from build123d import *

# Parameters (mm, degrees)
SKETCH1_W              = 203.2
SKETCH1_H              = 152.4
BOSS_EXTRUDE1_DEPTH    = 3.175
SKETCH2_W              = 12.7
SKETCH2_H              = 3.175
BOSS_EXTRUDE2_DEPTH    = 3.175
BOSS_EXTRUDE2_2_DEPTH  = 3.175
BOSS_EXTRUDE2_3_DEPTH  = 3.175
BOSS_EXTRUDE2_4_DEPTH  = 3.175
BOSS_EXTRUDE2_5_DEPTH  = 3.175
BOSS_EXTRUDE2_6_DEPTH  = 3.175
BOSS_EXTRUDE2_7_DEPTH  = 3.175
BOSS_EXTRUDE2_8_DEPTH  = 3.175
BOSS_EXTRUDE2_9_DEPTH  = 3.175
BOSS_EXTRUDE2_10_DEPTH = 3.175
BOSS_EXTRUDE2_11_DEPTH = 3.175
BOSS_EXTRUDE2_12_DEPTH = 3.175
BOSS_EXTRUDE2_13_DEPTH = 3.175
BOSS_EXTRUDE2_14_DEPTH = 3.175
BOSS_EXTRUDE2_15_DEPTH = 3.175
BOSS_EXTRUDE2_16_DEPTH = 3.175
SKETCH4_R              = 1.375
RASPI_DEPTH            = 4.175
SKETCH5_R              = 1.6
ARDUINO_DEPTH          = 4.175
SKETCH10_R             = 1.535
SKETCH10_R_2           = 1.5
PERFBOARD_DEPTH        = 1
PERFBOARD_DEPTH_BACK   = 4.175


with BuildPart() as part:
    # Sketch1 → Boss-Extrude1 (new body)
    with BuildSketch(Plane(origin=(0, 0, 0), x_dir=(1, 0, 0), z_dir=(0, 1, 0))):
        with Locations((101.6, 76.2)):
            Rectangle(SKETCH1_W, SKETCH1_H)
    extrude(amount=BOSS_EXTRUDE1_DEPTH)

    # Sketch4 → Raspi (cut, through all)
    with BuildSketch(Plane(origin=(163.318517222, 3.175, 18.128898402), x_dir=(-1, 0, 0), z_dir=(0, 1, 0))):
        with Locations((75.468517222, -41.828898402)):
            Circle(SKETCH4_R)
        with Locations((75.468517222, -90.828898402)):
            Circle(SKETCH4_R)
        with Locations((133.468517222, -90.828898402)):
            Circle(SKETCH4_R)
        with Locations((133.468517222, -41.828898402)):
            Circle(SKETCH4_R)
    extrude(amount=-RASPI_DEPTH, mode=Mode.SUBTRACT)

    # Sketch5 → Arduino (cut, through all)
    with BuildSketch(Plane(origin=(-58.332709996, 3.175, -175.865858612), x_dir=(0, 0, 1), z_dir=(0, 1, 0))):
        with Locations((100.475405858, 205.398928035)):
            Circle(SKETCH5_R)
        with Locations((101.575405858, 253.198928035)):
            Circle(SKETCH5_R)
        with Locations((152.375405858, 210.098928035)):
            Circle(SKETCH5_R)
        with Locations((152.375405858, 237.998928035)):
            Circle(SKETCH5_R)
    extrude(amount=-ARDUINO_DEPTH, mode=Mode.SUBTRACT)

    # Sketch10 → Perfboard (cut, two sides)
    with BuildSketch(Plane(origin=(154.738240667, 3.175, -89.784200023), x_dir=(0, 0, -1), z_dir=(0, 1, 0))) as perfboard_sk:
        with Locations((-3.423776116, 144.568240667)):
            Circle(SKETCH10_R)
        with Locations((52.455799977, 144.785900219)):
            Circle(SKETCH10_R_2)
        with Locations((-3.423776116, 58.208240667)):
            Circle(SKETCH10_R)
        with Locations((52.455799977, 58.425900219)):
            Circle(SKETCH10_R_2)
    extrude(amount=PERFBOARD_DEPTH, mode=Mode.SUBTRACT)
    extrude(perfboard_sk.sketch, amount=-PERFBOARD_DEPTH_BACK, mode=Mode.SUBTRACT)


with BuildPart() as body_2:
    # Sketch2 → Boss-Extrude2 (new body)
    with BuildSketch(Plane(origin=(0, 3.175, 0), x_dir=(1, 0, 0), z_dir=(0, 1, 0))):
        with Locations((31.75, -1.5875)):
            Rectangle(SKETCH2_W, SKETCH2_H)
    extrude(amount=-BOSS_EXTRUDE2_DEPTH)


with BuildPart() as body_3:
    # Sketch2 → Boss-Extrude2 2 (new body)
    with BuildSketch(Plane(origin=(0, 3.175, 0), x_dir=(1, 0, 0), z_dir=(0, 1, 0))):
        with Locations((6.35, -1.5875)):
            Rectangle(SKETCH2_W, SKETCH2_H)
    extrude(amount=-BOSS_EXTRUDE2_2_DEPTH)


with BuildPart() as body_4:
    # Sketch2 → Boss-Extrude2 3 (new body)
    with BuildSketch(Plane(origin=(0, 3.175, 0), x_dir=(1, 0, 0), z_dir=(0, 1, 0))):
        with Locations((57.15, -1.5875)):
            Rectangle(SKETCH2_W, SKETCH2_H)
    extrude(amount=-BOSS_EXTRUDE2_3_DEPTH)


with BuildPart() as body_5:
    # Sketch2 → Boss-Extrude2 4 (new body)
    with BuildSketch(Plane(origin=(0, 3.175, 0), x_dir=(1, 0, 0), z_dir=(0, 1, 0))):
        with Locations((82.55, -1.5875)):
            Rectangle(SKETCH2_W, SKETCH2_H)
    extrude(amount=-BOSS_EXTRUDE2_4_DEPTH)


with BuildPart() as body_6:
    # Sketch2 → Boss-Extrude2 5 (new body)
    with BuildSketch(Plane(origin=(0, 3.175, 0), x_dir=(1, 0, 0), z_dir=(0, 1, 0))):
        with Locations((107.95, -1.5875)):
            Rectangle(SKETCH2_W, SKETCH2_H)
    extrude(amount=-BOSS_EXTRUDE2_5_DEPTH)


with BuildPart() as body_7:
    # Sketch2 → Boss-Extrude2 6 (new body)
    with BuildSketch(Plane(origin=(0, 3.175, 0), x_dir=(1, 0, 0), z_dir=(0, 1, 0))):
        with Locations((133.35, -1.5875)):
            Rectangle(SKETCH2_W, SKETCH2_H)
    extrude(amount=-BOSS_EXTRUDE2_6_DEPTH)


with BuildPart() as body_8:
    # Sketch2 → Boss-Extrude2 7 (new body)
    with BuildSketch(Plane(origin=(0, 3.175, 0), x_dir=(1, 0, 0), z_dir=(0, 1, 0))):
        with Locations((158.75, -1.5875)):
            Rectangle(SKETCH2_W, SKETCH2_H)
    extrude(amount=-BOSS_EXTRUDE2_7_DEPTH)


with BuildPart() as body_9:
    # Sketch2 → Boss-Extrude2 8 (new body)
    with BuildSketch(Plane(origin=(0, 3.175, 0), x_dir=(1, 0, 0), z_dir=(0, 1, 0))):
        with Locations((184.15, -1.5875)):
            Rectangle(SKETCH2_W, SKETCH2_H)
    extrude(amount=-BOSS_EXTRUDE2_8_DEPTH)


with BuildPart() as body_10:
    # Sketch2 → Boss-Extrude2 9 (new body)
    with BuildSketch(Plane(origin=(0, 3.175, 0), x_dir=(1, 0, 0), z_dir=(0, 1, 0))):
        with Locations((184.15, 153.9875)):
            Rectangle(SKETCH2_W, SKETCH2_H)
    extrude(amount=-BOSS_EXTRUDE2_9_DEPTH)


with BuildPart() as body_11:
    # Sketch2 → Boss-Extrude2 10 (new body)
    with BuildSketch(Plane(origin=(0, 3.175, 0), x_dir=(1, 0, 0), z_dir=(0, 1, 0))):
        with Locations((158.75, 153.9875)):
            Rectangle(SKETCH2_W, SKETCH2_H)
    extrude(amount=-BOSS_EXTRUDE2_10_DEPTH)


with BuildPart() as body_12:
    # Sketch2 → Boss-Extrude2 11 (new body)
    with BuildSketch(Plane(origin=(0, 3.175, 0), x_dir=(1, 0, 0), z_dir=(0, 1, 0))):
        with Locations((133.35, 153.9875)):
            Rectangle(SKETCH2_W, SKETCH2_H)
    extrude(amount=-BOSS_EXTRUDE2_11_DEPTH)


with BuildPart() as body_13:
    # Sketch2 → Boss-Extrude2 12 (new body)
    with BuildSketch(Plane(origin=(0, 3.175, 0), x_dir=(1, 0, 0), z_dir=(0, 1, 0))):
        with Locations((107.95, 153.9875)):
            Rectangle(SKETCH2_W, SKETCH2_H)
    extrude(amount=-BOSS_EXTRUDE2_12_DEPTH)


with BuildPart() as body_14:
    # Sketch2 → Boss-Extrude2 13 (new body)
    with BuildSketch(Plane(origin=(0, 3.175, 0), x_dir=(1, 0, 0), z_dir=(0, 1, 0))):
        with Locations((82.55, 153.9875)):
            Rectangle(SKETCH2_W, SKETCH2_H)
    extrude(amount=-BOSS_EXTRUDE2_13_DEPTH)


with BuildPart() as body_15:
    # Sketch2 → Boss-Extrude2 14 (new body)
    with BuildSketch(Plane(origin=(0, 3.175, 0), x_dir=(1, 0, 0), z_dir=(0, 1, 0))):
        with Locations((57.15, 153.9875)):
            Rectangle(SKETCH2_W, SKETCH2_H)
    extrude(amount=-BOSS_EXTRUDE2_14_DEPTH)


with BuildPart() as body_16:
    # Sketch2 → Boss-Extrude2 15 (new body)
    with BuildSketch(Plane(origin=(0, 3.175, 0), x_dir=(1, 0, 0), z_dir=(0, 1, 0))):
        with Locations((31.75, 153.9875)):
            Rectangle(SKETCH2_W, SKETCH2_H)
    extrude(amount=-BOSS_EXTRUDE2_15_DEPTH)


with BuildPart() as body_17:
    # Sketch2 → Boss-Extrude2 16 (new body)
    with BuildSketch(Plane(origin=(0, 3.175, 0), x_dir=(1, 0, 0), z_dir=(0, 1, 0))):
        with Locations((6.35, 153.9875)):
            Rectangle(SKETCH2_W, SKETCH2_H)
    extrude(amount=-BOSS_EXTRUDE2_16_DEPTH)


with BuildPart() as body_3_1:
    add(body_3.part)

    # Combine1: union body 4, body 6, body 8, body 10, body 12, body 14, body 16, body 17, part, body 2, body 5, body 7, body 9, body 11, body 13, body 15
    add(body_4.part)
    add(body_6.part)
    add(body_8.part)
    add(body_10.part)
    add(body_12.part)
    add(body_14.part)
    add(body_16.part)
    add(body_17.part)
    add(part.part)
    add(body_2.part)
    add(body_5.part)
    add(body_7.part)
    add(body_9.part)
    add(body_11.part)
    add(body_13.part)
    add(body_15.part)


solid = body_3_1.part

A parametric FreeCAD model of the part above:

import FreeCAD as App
import Part
import Sketcher

V = App.Vector
Q = App.Units.Quantity


def add_polygon(sketch, points):
    """Adds a closed chain of lines whose ends are joined by coincident constraints."""
    first, n = sketch.GeometryCount, len(points)
    for a, b in zip(points, points[1:] + points[:1]):
        sketch.addGeometry(Part.LineSegment(App.Vector(*a, 0), App.Vector(*b, 0)), False)
    for i in range(n):
        sketch.addConstraint(Sketcher.Constraint("Coincident", first + i, 2, first + (i + 1) % n, 1))

doc = App.newDocument("Part")
body = doc.addObject("PartDesign::Body", "Body")

sketch1 = body.newObject("Sketcher::SketchObject", "Sketch")
sketch1.AttachmentSupport = (doc.getObject("XZ_Plane"), [""])
sketch1.MapMode = "FlatFace"
add_polygon(sketch1, [(0, -152), (0, 0), (203, 0), (203, -152)])
sketch1.addConstraint(Sketcher.Constraint("Vertical", 0))
sketch1.addConstraint(Sketcher.Constraint("Horizontal", 1))
sketch1.addConstraint(Sketcher.Constraint("Vertical", 2))
sketch1.addConstraint(Sketcher.Constraint("Horizontal", 3))
sketch1.addConstraint(Sketcher.Constraint("Coincident", 0, 2, -1, 1))
sketch1.addConstraint(Sketcher.Constraint("DistanceX", 1, 1, 1, 2, Q("8 in")))
sketch1.addConstraint(Sketcher.Constraint("DistanceY", 0, 1, 0, 2, Q("6 in")))
pad1 = body.newObject("PartDesign::Pad", "Pad")
pad1.Profile = sketch1
pad1.Length = Q("0.125 in")
pad1.Reversed = True

sketch2 = body.newObject("Sketcher::SketchObject", "Sketch001")
sketch2.AttachmentSupport = (doc.getObject("XZ_Plane"), [""])
sketch2.MapMode = "FlatFace"
sketch2.AttachmentOffset = App.Placement(V(0, 0, -0.125 * 25.4), App.Rotation())
sketch2.addGeometry(Part.Circle(V(87.8, -23.7, 0), V(0, 0, 1), 1.4), False)
sketch2.addGeometry(Part.Circle(V(87.8, -72.7, 0), V(0, 0, 1), 1.4), False)
sketch2.addGeometry(Part.Circle(V(29.9, -72.7, 0), V(0, 0, 1), 1.4), False)
sketch2.addGeometry(Part.Circle(V(29.9, -23.7, 0), V(0, 0, 1), 1.4), False)
sketch2.addConstraint(Sketcher.Constraint("Equal", 0, 1))
sketch2.addConstraint(Sketcher.Constraint("Equal", 1, 2))
sketch2.addConstraint(Sketcher.Constraint("Equal", 2, 3))
sketch2.addConstraint(Sketcher.Constraint("Horizontal", 1, 3, 2, 3))
sketch2.addConstraint(Sketcher.Constraint("Horizontal", 0, 3, 3, 3))
sketch2.addConstraint(Sketcher.Constraint("Vertical", 0, 3, 1, 3))
sketch2.addConstraint(Sketcher.Constraint("Vertical", 2, 3, 3, 3))
sketch2.addConstraint(Sketcher.Constraint("Diameter", 0, 2.75))
sketch2.addConstraint(Sketcher.Constraint("DistanceX", -1, 1, 0, 3, 87.85))
sketch2.addConstraint(Sketcher.Constraint("DistanceY", 0, 3, -1, 1, 23.7))
sketch2.addConstraint(Sketcher.Constraint("DistanceY", 1, 3, -1, 1, 72.7))
sketch2.addConstraint(Sketcher.Constraint("DistanceX", -1, 1, 2, 3, 29.85))
pocket1 = body.newObject("PartDesign::Pocket", "Pocket")
pocket1.Profile = sketch2
pocket1.Type = "ThroughAll"
pocket1.Reversed = True

sketch3 = body.newObject("Sketcher::SketchObject", "Sketch002")
sketch3.AttachmentSupport = (doc.getObject("XZ_Plane"), [""])
sketch3.MapMode = "FlatFace"
sketch3.AttachmentOffset = App.Placement(V(0, 0, -0.125 * 25.4), App.Rotation())
sketch3.addGeometry(Part.Circle(V(147.1, -75.4, 0), V(0, 0, 1), 1.6), False)
sketch3.addGeometry(Part.Circle(V(194.9, -74.3, 0), V(0, 0, 1), 1.6), False)
sketch3.addGeometry(Part.Circle(V(151.8, -23.5, 0), V(0, 0, 1), 1.6), False)
sketch3.addGeometry(Part.Circle(V(179.7, -23.5, 0), V(0, 0, 1), 1.6), False)
sketch3.addConstraint(Sketcher.Constraint("Equal", 0, 1))
sketch3.addConstraint(Sketcher.Constraint("Equal", 1, 2))
sketch3.addConstraint(Sketcher.Constraint("Equal", 2, 3))
sketch3.addConstraint(Sketcher.Constraint("Horizontal", 2, 3, 3, 3))
sketch3.addConstraint(Sketcher.Constraint("DistanceY", 1, 3, 2, 3, Q("2 in")))
sketch3.addConstraint(Sketcher.Constraint("Diameter", 0, 3.2))
sketch3.addConstraint(Sketcher.Constraint("DistanceX", 0, 3, 1, 3, 47.8))
sketch3.addConstraint(Sketcher.Constraint("DistanceY", 0, 3, 1, 3, 1.1))
sketch3.addConstraint(Sketcher.Constraint("DistanceX", 0, 3, 2, 3, 4.7))
sketch3.addConstraint(Sketcher.Constraint("DistanceX", 2, 3, 3, 3, 27.9))
sketch3.addConstraint(Sketcher.Constraint("DistanceX", -1, 1, 0, 3, 147.066218))
sketch3.addConstraint(Sketcher.Constraint("DistanceY", 0, 3, -1, 1, 75.390453))
pocket2 = body.newObject("PartDesign::Pocket", "Pocket001")
pocket2.Profile = sketch3
pocket2.Type = "ThroughAll"
pocket2.Reversed = True

sketch4 = body.newObject("Sketcher::SketchObject", "Sketch003")
sketch4.AttachmentSupport = (doc.getObject("XZ_Plane"), [""])
sketch4.MapMode = "FlatFace"
sketch4.AttachmentOffset = App.Placement(V(0, 0, -0.125 * 25.4), App.Rotation())
sketch4.addGeometry(Part.Circle(V(10.2, -86.4, 0), V(0, 0, 1), 1.5), False)
sketch4.addGeometry(Part.Circle(V(10, -142.2, 0), V(0, 0, 1), 1.5), False)
sketch4.addGeometry(Part.Circle(V(96.5, -86.4, 0), V(0, 0, 1), 1.5), False)
sketch4.addGeometry(Part.Circle(V(96.3, -142.2, 0), V(0, 0, 1), 1.5), False)
sketch4.addConstraint(Sketcher.Constraint("Equal", 0, 2))
sketch4.addConstraint(Sketcher.Constraint("Equal", 1, 3))
sketch4.addConstraint(Sketcher.Constraint("Horizontal", 0, 3, 2, 3))
sketch4.addConstraint(Sketcher.Constraint("Horizontal", 1, 3, 3, 3))
sketch4.addConstraint(Sketcher.Constraint("DistanceY", 1, 3, -1, 1, Q("5.6 in")))
sketch4.addConstraint(Sketcher.Constraint("DistanceX", 0, 3, 2, 3, Q("3.4 in")))
sketch4.addConstraint(Sketcher.Constraint("DistanceX", 1, 3, 3, 3, Q("3.4 in")))
sketch4.addConstraint(Sketcher.Constraint("Diameter", 0, 3.07))
sketch4.addConstraint(Sketcher.Constraint("Diameter", 1, 3.0))
sketch4.addConstraint(Sketcher.Constraint("DistanceX", -1, 1, 0, 3, 10.17))
sketch4.addConstraint(Sketcher.Constraint("DistanceX", -1, 1, 1, 3, 9.95234))
sketch4.addConstraint(Sketcher.Constraint("DistanceY", 0, 3, -1, 1, 86.360424))
pocket3 = body.newObject("PartDesign::Pocket", "Pocket002")
pocket3.Profile = sketch4
pocket3.Type = "ThroughAll"
pocket3.Midplane = True
body2 = doc.addObject("PartDesign::Body", "Body001")

sketch5 = body2.newObject("Sketcher::SketchObject", "Sketch004")
sketch5.AttachmentSupport = (doc.getObject("XZ_Plane001"), [""])
sketch5.MapMode = "FlatFace"
sketch5.AttachmentOffset = App.Placement(V(0, 0, -0.125 * 25.4), App.Rotation())
add_polygon(sketch5, [(25.4, 0), (25.4, 3.2), (38.1, 3.2), (38.1, 0)])
sketch5.addConstraint(Sketcher.Constraint("Vertical", 0))
sketch5.addConstraint(Sketcher.Constraint("Horizontal", 1))
sketch5.addConstraint(Sketcher.Constraint("Vertical", 2))
sketch5.addConstraint(Sketcher.Constraint("Horizontal", 3))
sketch5.addConstraint(Sketcher.Constraint("PointOnObject", 2, 2, -1))
sketch5.addConstraint(Sketcher.Constraint("DistanceX", 1, 1, 1, 2, Q("0.5 in")))
sketch5.addConstraint(Sketcher.Constraint("DistanceX", -1, 1, 0, 2, Q("1 in")))
sketch5.addConstraint(Sketcher.Constraint("DistanceY", 0, 1, 0, 2, Q("0.125 in")))
pad2 = body2.newObject("PartDesign::Pad", "Pad001")
pad2.Profile = sketch5
pad2.Length = Q("0.125 in")
body3 = doc.addObject("PartDesign::Body", "Body002")

sketch6 = body3.newObject("Sketcher::SketchObject", "Sketch005")
sketch6.AttachmentSupport = (doc.getObject("XZ_Plane002"), [""])
sketch6.MapMode = "FlatFace"
sketch6.AttachmentOffset = App.Placement(V(0, 0, -0.125 * 25.4), App.Rotation())
add_polygon(sketch6, [(0, 0), (0, 3.2), (12.7, 3.2), (12.7, 0)])
sketch6.addConstraint(Sketcher.Constraint("Vertical", 0))
sketch6.addConstraint(Sketcher.Constraint("Horizontal", 1))
sketch6.addConstraint(Sketcher.Constraint("Vertical", 2))
sketch6.addConstraint(Sketcher.Constraint("Horizontal", 3))
sketch6.addConstraint(Sketcher.Constraint("Coincident", 3, 2, -1, 1))
sketch6.addConstraint(Sketcher.Constraint("DistanceX", 1, 1, 1, 2, Q("0.5 in")))
sketch6.addConstraint(Sketcher.Constraint("DistanceY", 0, 1, 0, 2, Q("0.125 in")))
pad3 = body3.newObject("PartDesign::Pad", "Pad002")
pad3.Profile = sketch6
pad3.Length = Q("0.125 in")
body4 = doc.addObject("PartDesign::Body", "Body003")

sketch7 = body4.newObject("Sketcher::SketchObject", "Sketch006")
sketch7.AttachmentSupport = (doc.getObject("XZ_Plane003"), [""])
sketch7.MapMode = "FlatFace"
sketch7.AttachmentOffset = App.Placement(V(0, 0, -0.125 * 25.4), App.Rotation())
add_polygon(sketch7, [(50.8, 0), (50.8, 3.2), (63.5, 3.2), (63.5, 0)])
sketch7.addConstraint(Sketcher.Constraint("Vertical", 0))
sketch7.addConstraint(Sketcher.Constraint("Horizontal", 1))
sketch7.addConstraint(Sketcher.Constraint("Vertical", 2))
sketch7.addConstraint(Sketcher.Constraint("Horizontal", 3))
sketch7.addConstraint(Sketcher.Constraint("PointOnObject", 2, 2, -1))
sketch7.addConstraint(Sketcher.Constraint("DistanceX", 1, 1, 1, 2, Q("0.5 in")))
sketch7.addConstraint(Sketcher.Constraint("DistanceX", -1, 1, 0, 2, Q("2 in")))
sketch7.addConstraint(Sketcher.Constraint("DistanceY", 0, 1, 0, 2, Q("0.125 in")))
pad4 = body4.newObject("PartDesign::Pad", "Pad003")
pad4.Profile = sketch7
pad4.Length = Q("0.125 in")
body5 = doc.addObject("PartDesign::Body", "Body004")

sketch8 = body5.newObject("Sketcher::SketchObject", "Sketch007")
sketch8.AttachmentSupport = (doc.getObject("XZ_Plane004"), [""])
sketch8.MapMode = "FlatFace"
sketch8.AttachmentOffset = App.Placement(V(0, 0, -0.125 * 25.4), App.Rotation())
add_polygon(sketch8, [(76.2, 0), (76.2, 3.2), (88.9, 3.2), (88.9, 0)])
sketch8.addConstraint(Sketcher.Constraint("Vertical", 0))
sketch8.addConstraint(Sketcher.Constraint("Horizontal", 1))
sketch8.addConstraint(Sketcher.Constraint("Vertical", 2))
sketch8.addConstraint(Sketcher.Constraint("Horizontal", 3))
sketch8.addConstraint(Sketcher.Constraint("PointOnObject", 2, 2, -1))
sketch8.addConstraint(Sketcher.Constraint("DistanceX", 1, 1, 1, 2, Q("0.5 in")))
sketch8.addConstraint(Sketcher.Constraint("DistanceX", -1, 1, 0, 2, Q("3 in")))
sketch8.addConstraint(Sketcher.Constraint("DistanceY", 0, 1, 0, 2, Q("0.125 in")))
pad5 = body5.newObject("PartDesign::Pad", "Pad004")
pad5.Profile = sketch8
pad5.Length = Q("0.125 in")
body6 = doc.addObject("PartDesign::Body", "Body005")

sketch9 = body6.newObject("Sketcher::SketchObject", "Sketch008")
sketch9.AttachmentSupport = (doc.getObject("XZ_Plane005"), [""])
sketch9.MapMode = "FlatFace"
sketch9.AttachmentOffset = App.Placement(V(0, 0, -0.125 * 25.4), App.Rotation())
add_polygon(sketch9, [(101.6, 0), (101.6, 3.2), (114.3, 3.2), (114.3, 0)])
sketch9.addConstraint(Sketcher.Constraint("Vertical", 0))
sketch9.addConstraint(Sketcher.Constraint("Horizontal", 1))
sketch9.addConstraint(Sketcher.Constraint("Vertical", 2))
sketch9.addConstraint(Sketcher.Constraint("Horizontal", 3))
sketch9.addConstraint(Sketcher.Constraint("PointOnObject", 2, 2, -1))
sketch9.addConstraint(Sketcher.Constraint("DistanceX", 1, 1, 1, 2, Q("0.5 in")))
sketch9.addConstraint(Sketcher.Constraint("DistanceX", -1, 1, 0, 2, Q("4 in")))
sketch9.addConstraint(Sketcher.Constraint("DistanceY", 0, 1, 0, 2, Q("0.125 in")))
pad6 = body6.newObject("PartDesign::Pad", "Pad005")
pad6.Profile = sketch9
pad6.Length = Q("0.125 in")
body7 = doc.addObject("PartDesign::Body", "Body006")

sketch10 = body7.newObject("Sketcher::SketchObject", "Sketch009")
sketch10.AttachmentSupport = (doc.getObject("XZ_Plane006"), [""])
sketch10.MapMode = "FlatFace"
sketch10.AttachmentOffset = App.Placement(V(0, 0, -0.125 * 25.4), App.Rotation())
add_polygon(sketch10, [(127, 0), (127, 3.2), (139.7, 3.2), (139.7, 0)])
sketch10.addConstraint(Sketcher.Constraint("Vertical", 0))
sketch10.addConstraint(Sketcher.Constraint("Horizontal", 1))
sketch10.addConstraint(Sketcher.Constraint("Vertical", 2))
sketch10.addConstraint(Sketcher.Constraint("Horizontal", 3))
sketch10.addConstraint(Sketcher.Constraint("PointOnObject", 2, 2, -1))
sketch10.addConstraint(Sketcher.Constraint("DistanceX", 1, 1, 1, 2, Q("0.5 in")))
sketch10.addConstraint(Sketcher.Constraint("DistanceX", -1, 1, 0, 2, Q("5 in")))
sketch10.addConstraint(Sketcher.Constraint("DistanceY", 0, 1, 0, 2, Q("0.125 in")))
pad7 = body7.newObject("PartDesign::Pad", "Pad006")
pad7.Profile = sketch10
pad7.Length = Q("0.125 in")
body8 = doc.addObject("PartDesign::Body", "Body007")

sketch11 = body8.newObject("Sketcher::SketchObject", "Sketch010")
sketch11.AttachmentSupport = (doc.getObject("XZ_Plane007"), [""])
sketch11.MapMode = "FlatFace"
sketch11.AttachmentOffset = App.Placement(V(0, 0, -0.125 * 25.4), App.Rotation())
add_polygon(sketch11, [(152.4, 0), (152.4, 3.2), (165.1, 3.2), (165.1, 0)])
sketch11.addConstraint(Sketcher.Constraint("Vertical", 0))
sketch11.addConstraint(Sketcher.Constraint("Horizontal", 1))
sketch11.addConstraint(Sketcher.Constraint("Vertical", 2))
sketch11.addConstraint(Sketcher.Constraint("Horizontal", 3))
sketch11.addConstraint(Sketcher.Constraint("PointOnObject", 2, 2, -1))
sketch11.addConstraint(Sketcher.Constraint("DistanceX", 1, 1, 1, 2, Q("0.5 in")))
sketch11.addConstraint(Sketcher.Constraint("DistanceX", -1, 1, 0, 2, Q("6 in")))
sketch11.addConstraint(Sketcher.Constraint("DistanceY", 0, 1, 0, 2, Q("0.125 in")))
pad8 = body8.newObject("PartDesign::Pad", "Pad007")
pad8.Profile = sketch11
pad8.Length = Q("0.125 in")
body9 = doc.addObject("PartDesign::Body", "Body008")

sketch12 = body9.newObject("Sketcher::SketchObject", "Sketch011")
sketch12.AttachmentSupport = (doc.getObject("XZ_Plane008"), [""])
sketch12.MapMode = "FlatFace"
sketch12.AttachmentOffset = App.Placement(V(0, 0, -0.125 * 25.4), App.Rotation())
add_polygon(sketch12, [(177.8, 0), (177.8, 3.2), (190.5, 3.2), (190.5, 0)])
sketch12.addConstraint(Sketcher.Constraint("Vertical", 0))
sketch12.addConstraint(Sketcher.Constraint("Horizontal", 1))
sketch12.addConstraint(Sketcher.Constraint("Vertical", 2))
sketch12.addConstraint(Sketcher.Constraint("Horizontal", 3))
sketch12.addConstraint(Sketcher.Constraint("PointOnObject", 2, 2, -1))
sketch12.addConstraint(Sketcher.Constraint("DistanceX", 1, 1, 1, 2, Q("0.5 in")))
sketch12.addConstraint(Sketcher.Constraint("DistanceX", -1, 1, 0, 2, Q("7 in")))
sketch12.addConstraint(Sketcher.Constraint("DistanceY", 0, 1, 0, 2, Q("0.125 in")))
pad9 = body9.newObject("PartDesign::Pad", "Pad008")
pad9.Profile = sketch12
pad9.Length = Q("0.125 in")
body10 = doc.addObject("PartDesign::Body", "Body009")

sketch13 = body10.newObject("Sketcher::SketchObject", "Sketch012")
sketch13.AttachmentSupport = (doc.getObject("XZ_Plane009"), [""])
sketch13.MapMode = "FlatFace"
sketch13.AttachmentOffset = App.Placement(V(0, 0, -0.125 * 25.4), App.Rotation())
add_polygon(sketch13, [(177.8, -155.6), (177.8, -152.4), (190.5, -152.4), (190.5, -155.6)])
sketch13.addConstraint(Sketcher.Constraint("Vertical", 0))
sketch13.addConstraint(Sketcher.Constraint("Horizontal", 1))
sketch13.addConstraint(Sketcher.Constraint("Vertical", 2))
sketch13.addConstraint(Sketcher.Constraint("Horizontal", 3))
sketch13.addConstraint(Sketcher.Constraint("DistanceX", 1, 1, 1, 2, Q("0.5 in")))
sketch13.addConstraint(Sketcher.Constraint("DistanceX", -1, 1, 0, 2, Q("7 in")))
sketch13.addConstraint(Sketcher.Constraint("DistanceY", 0, 2, -1, 1, Q("6 in")))
sketch13.addConstraint(Sketcher.Constraint("DistanceY", 0, 1, 0, 2, Q("0.125 in")))
pad10 = body10.newObject("PartDesign::Pad", "Pad009")
pad10.Profile = sketch13
pad10.Length = Q("0.125 in")
body11 = doc.addObject("PartDesign::Body", "Body010")

sketch14 = body11.newObject("Sketcher::SketchObject", "Sketch013")
sketch14.AttachmentSupport = (doc.getObject("XZ_Plane010"), [""])
sketch14.MapMode = "FlatFace"
sketch14.AttachmentOffset = App.Placement(V(0, 0, -0.125 * 25.4), App.Rotation())
add_polygon(sketch14, [(152.4, -155.6), (152.4, -152.4), (165.1, -152.4), (165.1, -155.6)])
sketch14.addConstraint(Sketcher.Constraint("Vertical", 0))
sketch14.addConstraint(Sketcher.Constraint("Horizontal", 1))
sketch14.addConstraint(Sketcher.Constraint("Vertical", 2))
sketch14.addConstraint(Sketcher.Constraint("Horizontal", 3))
sketch14.addConstraint(Sketcher.Constraint("DistanceX", 1, 1, 1, 2, Q("0.5 in")))
sketch14.addConstraint(Sketcher.Constraint("DistanceX", -1, 1, 0, 2, Q("6 in")))
sketch14.addConstraint(Sketcher.Constraint("DistanceY", 0, 2, -1, 1, Q("6 in")))
sketch14.addConstraint(Sketcher.Constraint("DistanceY", 0, 1, 0, 2, Q("0.125 in")))
pad11 = body11.newObject("PartDesign::Pad", "Pad010")
pad11.Profile = sketch14
pad11.Length = Q("0.125 in")
body12 = doc.addObject("PartDesign::Body", "Body011")

sketch15 = body12.newObject("Sketcher::SketchObject", "Sketch014")
sketch15.AttachmentSupport = (doc.getObject("XZ_Plane011"), [""])
sketch15.MapMode = "FlatFace"
sketch15.AttachmentOffset = App.Placement(V(0, 0, -0.125 * 25.4), App.Rotation())
add_polygon(sketch15, [(127, -155.6), (127, -152.4), (139.7, -152.4), (139.7, -155.6)])
sketch15.addConstraint(Sketcher.Constraint("Vertical", 0))
sketch15.addConstraint(Sketcher.Constraint("Horizontal", 1))
sketch15.addConstraint(Sketcher.Constraint("Vertical", 2))
sketch15.addConstraint(Sketcher.Constraint("Horizontal", 3))
sketch15.addConstraint(Sketcher.Constraint("DistanceX", 1, 1, 1, 2, Q("0.5 in")))
sketch15.addConstraint(Sketcher.Constraint("DistanceX", -1, 1, 0, 2, Q("5 in")))
sketch15.addConstraint(Sketcher.Constraint("DistanceY", 0, 2, -1, 1, Q("6 in")))
sketch15.addConstraint(Sketcher.Constraint("DistanceY", 0, 1, 0, 2, Q("0.125 in")))
pad12 = body12.newObject("PartDesign::Pad", "Pad011")
pad12.Profile = sketch15
pad12.Length = Q("0.125 in")
body13 = doc.addObject("PartDesign::Body", "Body012")

sketch16 = body13.newObject("Sketcher::SketchObject", "Sketch015")
sketch16.AttachmentSupport = (doc.getObject("XZ_Plane012"), [""])
sketch16.MapMode = "FlatFace"
sketch16.AttachmentOffset = App.Placement(V(0, 0, -0.125 * 25.4), App.Rotation())
add_polygon(sketch16, [(101.6, -155.6), (101.6, -152.4), (114.3, -152.4), (114.3, -155.6)])
sketch16.addConstraint(Sketcher.Constraint("Vertical", 0))
sketch16.addConstraint(Sketcher.Constraint("Horizontal", 1))
sketch16.addConstraint(Sketcher.Constraint("Vertical", 2))
sketch16.addConstraint(Sketcher.Constraint("Horizontal", 3))
sketch16.addConstraint(Sketcher.Constraint("DistanceX", 1, 1, 1, 2, Q("0.5 in")))
sketch16.addConstraint(Sketcher.Constraint("DistanceX", -1, 1, 0, 2, Q("4 in")))
sketch16.addConstraint(Sketcher.Constraint("DistanceY", 0, 2, -1, 1, Q("6 in")))
sketch16.addConstraint(Sketcher.Constraint("DistanceY", 0, 1, 0, 2, Q("0.125 in")))
pad13 = body13.newObject("PartDesign::Pad", "Pad012")
pad13.Profile = sketch16
pad13.Length = Q("0.125 in")
body14 = doc.addObject("PartDesign::Body", "Body013")

sketch17 = body14.newObject("Sketcher::SketchObject", "Sketch016")
sketch17.AttachmentSupport = (doc.getObject("XZ_Plane013"), [""])
sketch17.MapMode = "FlatFace"
sketch17.AttachmentOffset = App.Placement(V(0, 0, -0.125 * 25.4), App.Rotation())
add_polygon(sketch17, [(76.2, -155.6), (76.2, -152.4), (88.9, -152.4), (88.9, -155.6)])
sketch17.addConstraint(Sketcher.Constraint("Vertical", 0))
sketch17.addConstraint(Sketcher.Constraint("Horizontal", 1))
sketch17.addConstraint(Sketcher.Constraint("Vertical", 2))
sketch17.addConstraint(Sketcher.Constraint("Horizontal", 3))
sketch17.addConstraint(Sketcher.Constraint("DistanceX", 1, 1, 1, 2, Q("0.5 in")))
sketch17.addConstraint(Sketcher.Constraint("DistanceX", -1, 1, 0, 2, Q("3 in")))
sketch17.addConstraint(Sketcher.Constraint("DistanceY", 0, 2, -1, 1, Q("6 in")))
sketch17.addConstraint(Sketcher.Constraint("DistanceY", 0, 1, 0, 2, Q("0.125 in")))
pad14 = body14.newObject("PartDesign::Pad", "Pad013")
pad14.Profile = sketch17
pad14.Length = Q("0.125 in")
body15 = doc.addObject("PartDesign::Body", "Body014")

sketch18 = body15.newObject("Sketcher::SketchObject", "Sketch017")
sketch18.AttachmentSupport = (doc.getObject("XZ_Plane014"), [""])
sketch18.MapMode = "FlatFace"
sketch18.AttachmentOffset = App.Placement(V(0, 0, -0.125 * 25.4), App.Rotation())
add_polygon(sketch18, [(50.8, -155.6), (50.8, -152.4), (63.5, -152.4), (63.5, -155.6)])
sketch18.addConstraint(Sketcher.Constraint("Vertical", 0))
sketch18.addConstraint(Sketcher.Constraint("Horizontal", 1))
sketch18.addConstraint(Sketcher.Constraint("Vertical", 2))
sketch18.addConstraint(Sketcher.Constraint("Horizontal", 3))
sketch18.addConstraint(Sketcher.Constraint("DistanceX", 1, 1, 1, 2, Q("0.5 in")))
sketch18.addConstraint(Sketcher.Constraint("DistanceX", -1, 1, 0, 2, Q("2 in")))
sketch18.addConstraint(Sketcher.Constraint("DistanceY", 0, 2, -1, 1, Q("6 in")))
sketch18.addConstraint(Sketcher.Constraint("DistanceY", 0, 1, 0, 2, Q("0.125 in")))
pad15 = body15.newObject("PartDesign::Pad", "Pad014")
pad15.Profile = sketch18
pad15.Length = Q("0.125 in")
body16 = doc.addObject("PartDesign::Body", "Body015")

sketch19 = body16.newObject("Sketcher::SketchObject", "Sketch018")
sketch19.AttachmentSupport = (doc.getObject("XZ_Plane015"), [""])
sketch19.MapMode = "FlatFace"
sketch19.AttachmentOffset = App.Placement(V(0, 0, -0.125 * 25.4), App.Rotation())
add_polygon(sketch19, [(25.4, -155.6), (25.4, -152.4), (38.1, -152.4), (38.1, -155.6)])
sketch19.addConstraint(Sketcher.Constraint("Vertical", 0))
sketch19.addConstraint(Sketcher.Constraint("Horizontal", 1))
sketch19.addConstraint(Sketcher.Constraint("Vertical", 2))
sketch19.addConstraint(Sketcher.Constraint("Horizontal", 3))
sketch19.addConstraint(Sketcher.Constraint("DistanceX", 1, 1, 1, 2, Q("0.5 in")))
sketch19.addConstraint(Sketcher.Constraint("DistanceX", -1, 1, 0, 2, Q("1 in")))
sketch19.addConstraint(Sketcher.Constraint("DistanceY", 0, 2, -1, 1, Q("6 in")))
sketch19.addConstraint(Sketcher.Constraint("DistanceY", 0, 1, 0, 2, Q("0.125 in")))
pad16 = body16.newObject("PartDesign::Pad", "Pad015")
pad16.Profile = sketch19
pad16.Length = Q("0.125 in")
body17 = doc.addObject("PartDesign::Body", "Body016")

sketch20 = body17.newObject("Sketcher::SketchObject", "Sketch019")
sketch20.AttachmentSupport = (doc.getObject("XZ_Plane016"), [""])
sketch20.MapMode = "FlatFace"
sketch20.AttachmentOffset = App.Placement(V(0, 0, -0.125 * 25.4), App.Rotation())
add_polygon(sketch20, [(0, -155.6), (0, -152.4), (12.7, -152.4), (12.7, -155.6)])
sketch20.addConstraint(Sketcher.Constraint("Vertical", 0))
sketch20.addConstraint(Sketcher.Constraint("Horizontal", 1))
sketch20.addConstraint(Sketcher.Constraint("Vertical", 2))
sketch20.addConstraint(Sketcher.Constraint("Horizontal", 3))
sketch20.addConstraint(Sketcher.Constraint("PointOnObject", 0, 2, -2))
sketch20.addConstraint(Sketcher.Constraint("DistanceX", 1, 1, 1, 2, Q("0.5 in")))
sketch20.addConstraint(Sketcher.Constraint("DistanceY", 0, 2, -1, 1, Q("6 in")))
sketch20.addConstraint(Sketcher.Constraint("DistanceY", 0, 1, 0, 2, Q("0.125 in")))
pad17 = body17.newObject("PartDesign::Pad", "Pad016")
pad17.Profile = sketch20
pad17.Length = Q("0.125 in")
body3.AllowCompound = True
doc.recompute()

boolean = body3.newObject("PartDesign::Boolean", "Boolean")
boolean.Type = "Fuse"
boolean.addObjects([body4])
doc.recompute()

boolean2 = body3.newObject("PartDesign::Boolean", "Boolean001")
boolean2.Type = "Fuse"
boolean2.addObjects([body6])
doc.recompute()

boolean3 = body3.newObject("PartDesign::Boolean", "Boolean002")
boolean3.Type = "Fuse"
boolean3.addObjects([body8])
doc.recompute()

boolean4 = body3.newObject("PartDesign::Boolean", "Boolean003")
boolean4.Type = "Fuse"
boolean4.addObjects([body10])
doc.recompute()

boolean5 = body3.newObject("PartDesign::Boolean", "Boolean004")
boolean5.Type = "Fuse"
boolean5.addObjects([body12])
doc.recompute()

boolean6 = body3.newObject("PartDesign::Boolean", "Boolean005")
boolean6.Type = "Fuse"
boolean6.addObjects([body14])
doc.recompute()

boolean7 = body3.newObject("PartDesign::Boolean", "Boolean006")
boolean7.Type = "Fuse"
boolean7.addObjects([body16])
doc.recompute()

boolean8 = body3.newObject("PartDesign::Boolean", "Boolean007")
boolean8.Type = "Fuse"
boolean8.addObjects([body17])
doc.recompute()

boolean9 = body3.newObject("PartDesign::Boolean", "Boolean008")
boolean9.Type = "Fuse"
boolean9.addObjects([body])
doc.recompute()

boolean10 = body3.newObject("PartDesign::Boolean", "Boolean009")
boolean10.Type = "Fuse"
boolean10.addObjects([body2])
doc.recompute()

boolean11 = body3.newObject("PartDesign::Boolean", "Boolean010")
boolean11.Type = "Fuse"
boolean11.addObjects([body5])
doc.recompute()

boolean12 = body3.newObject("PartDesign::Boolean", "Boolean011")
boolean12.Type = "Fuse"
boolean12.addObjects([body7])
doc.recompute()

boolean13 = body3.newObject("PartDesign::Boolean", "Boolean012")
boolean13.Type = "Fuse"
boolean13.addObjects([body9])
doc.recompute()

boolean14 = body3.newObject("PartDesign::Boolean", "Boolean013")
boolean14.Type = "Fuse"
boolean14.addObjects([body11])
doc.recompute()

boolean15 = body3.newObject("PartDesign::Boolean", "Boolean014")
boolean15.Type = "Fuse"
boolean15.addObjects([body13])
doc.recompute()

boolean16 = body3.newObject("PartDesign::Boolean", "Boolean015")
boolean16.Type = "Fuse"
boolean16.addObjects([body15])

doc.recompute()
